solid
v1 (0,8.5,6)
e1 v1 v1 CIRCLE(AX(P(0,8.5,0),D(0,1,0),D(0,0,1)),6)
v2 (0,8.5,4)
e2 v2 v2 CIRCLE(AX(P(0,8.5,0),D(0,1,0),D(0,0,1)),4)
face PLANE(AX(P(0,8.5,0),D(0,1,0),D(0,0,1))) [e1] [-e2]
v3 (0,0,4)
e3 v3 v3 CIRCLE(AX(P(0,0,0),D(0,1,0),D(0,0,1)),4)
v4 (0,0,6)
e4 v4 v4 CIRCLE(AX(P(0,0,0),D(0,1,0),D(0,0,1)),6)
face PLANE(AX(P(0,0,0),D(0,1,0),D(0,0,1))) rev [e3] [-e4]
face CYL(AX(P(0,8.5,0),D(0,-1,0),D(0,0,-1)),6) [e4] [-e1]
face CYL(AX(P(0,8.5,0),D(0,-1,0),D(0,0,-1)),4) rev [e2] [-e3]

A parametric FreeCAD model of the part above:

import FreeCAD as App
import Part
import Sketcher

V = App.Vector
Q = App.Units.Quantity

doc = App.newDocument("Part")
body = doc.addObject("PartDesign::Body", "Body")

# Sketch on XZ plane
sketch1 = body.newObject("Sketcher::SketchObject", "Sketch")
sketch1.AttachmentSupport = (doc.getObject("XZ_Plane"), [""])
sketch1.MapMode = "FlatFace"
sketch1.addGeometry(Part.Circle(V(0, 0, 0), V(0, 0, 1), 6), False)
sketch1.addGeometry(Part.Circle(V(0, 0, 0), V(0, 0, 1), 4), False)
sketch1.addConstraint(Sketcher.Constraint("Coincident", 0, 3, -1, 1))
sketch1.addConstraint(Sketcher.Constraint("Coincident", 1, 3, -1, 1))
sketch1.addConstraint(Sketcher.Constraint("Diameter", 0, Q("12 mm")))
sketch1.addConstraint(Sketcher.Constraint("Diameter", 1, Q("8 mm")))
pad1 = body.newObject("PartDesign::Pad", "Pad")
pad1.Profile = sketch1
pad1.Length = 8.5
pad1.Reversed = True

doc.recompute()
